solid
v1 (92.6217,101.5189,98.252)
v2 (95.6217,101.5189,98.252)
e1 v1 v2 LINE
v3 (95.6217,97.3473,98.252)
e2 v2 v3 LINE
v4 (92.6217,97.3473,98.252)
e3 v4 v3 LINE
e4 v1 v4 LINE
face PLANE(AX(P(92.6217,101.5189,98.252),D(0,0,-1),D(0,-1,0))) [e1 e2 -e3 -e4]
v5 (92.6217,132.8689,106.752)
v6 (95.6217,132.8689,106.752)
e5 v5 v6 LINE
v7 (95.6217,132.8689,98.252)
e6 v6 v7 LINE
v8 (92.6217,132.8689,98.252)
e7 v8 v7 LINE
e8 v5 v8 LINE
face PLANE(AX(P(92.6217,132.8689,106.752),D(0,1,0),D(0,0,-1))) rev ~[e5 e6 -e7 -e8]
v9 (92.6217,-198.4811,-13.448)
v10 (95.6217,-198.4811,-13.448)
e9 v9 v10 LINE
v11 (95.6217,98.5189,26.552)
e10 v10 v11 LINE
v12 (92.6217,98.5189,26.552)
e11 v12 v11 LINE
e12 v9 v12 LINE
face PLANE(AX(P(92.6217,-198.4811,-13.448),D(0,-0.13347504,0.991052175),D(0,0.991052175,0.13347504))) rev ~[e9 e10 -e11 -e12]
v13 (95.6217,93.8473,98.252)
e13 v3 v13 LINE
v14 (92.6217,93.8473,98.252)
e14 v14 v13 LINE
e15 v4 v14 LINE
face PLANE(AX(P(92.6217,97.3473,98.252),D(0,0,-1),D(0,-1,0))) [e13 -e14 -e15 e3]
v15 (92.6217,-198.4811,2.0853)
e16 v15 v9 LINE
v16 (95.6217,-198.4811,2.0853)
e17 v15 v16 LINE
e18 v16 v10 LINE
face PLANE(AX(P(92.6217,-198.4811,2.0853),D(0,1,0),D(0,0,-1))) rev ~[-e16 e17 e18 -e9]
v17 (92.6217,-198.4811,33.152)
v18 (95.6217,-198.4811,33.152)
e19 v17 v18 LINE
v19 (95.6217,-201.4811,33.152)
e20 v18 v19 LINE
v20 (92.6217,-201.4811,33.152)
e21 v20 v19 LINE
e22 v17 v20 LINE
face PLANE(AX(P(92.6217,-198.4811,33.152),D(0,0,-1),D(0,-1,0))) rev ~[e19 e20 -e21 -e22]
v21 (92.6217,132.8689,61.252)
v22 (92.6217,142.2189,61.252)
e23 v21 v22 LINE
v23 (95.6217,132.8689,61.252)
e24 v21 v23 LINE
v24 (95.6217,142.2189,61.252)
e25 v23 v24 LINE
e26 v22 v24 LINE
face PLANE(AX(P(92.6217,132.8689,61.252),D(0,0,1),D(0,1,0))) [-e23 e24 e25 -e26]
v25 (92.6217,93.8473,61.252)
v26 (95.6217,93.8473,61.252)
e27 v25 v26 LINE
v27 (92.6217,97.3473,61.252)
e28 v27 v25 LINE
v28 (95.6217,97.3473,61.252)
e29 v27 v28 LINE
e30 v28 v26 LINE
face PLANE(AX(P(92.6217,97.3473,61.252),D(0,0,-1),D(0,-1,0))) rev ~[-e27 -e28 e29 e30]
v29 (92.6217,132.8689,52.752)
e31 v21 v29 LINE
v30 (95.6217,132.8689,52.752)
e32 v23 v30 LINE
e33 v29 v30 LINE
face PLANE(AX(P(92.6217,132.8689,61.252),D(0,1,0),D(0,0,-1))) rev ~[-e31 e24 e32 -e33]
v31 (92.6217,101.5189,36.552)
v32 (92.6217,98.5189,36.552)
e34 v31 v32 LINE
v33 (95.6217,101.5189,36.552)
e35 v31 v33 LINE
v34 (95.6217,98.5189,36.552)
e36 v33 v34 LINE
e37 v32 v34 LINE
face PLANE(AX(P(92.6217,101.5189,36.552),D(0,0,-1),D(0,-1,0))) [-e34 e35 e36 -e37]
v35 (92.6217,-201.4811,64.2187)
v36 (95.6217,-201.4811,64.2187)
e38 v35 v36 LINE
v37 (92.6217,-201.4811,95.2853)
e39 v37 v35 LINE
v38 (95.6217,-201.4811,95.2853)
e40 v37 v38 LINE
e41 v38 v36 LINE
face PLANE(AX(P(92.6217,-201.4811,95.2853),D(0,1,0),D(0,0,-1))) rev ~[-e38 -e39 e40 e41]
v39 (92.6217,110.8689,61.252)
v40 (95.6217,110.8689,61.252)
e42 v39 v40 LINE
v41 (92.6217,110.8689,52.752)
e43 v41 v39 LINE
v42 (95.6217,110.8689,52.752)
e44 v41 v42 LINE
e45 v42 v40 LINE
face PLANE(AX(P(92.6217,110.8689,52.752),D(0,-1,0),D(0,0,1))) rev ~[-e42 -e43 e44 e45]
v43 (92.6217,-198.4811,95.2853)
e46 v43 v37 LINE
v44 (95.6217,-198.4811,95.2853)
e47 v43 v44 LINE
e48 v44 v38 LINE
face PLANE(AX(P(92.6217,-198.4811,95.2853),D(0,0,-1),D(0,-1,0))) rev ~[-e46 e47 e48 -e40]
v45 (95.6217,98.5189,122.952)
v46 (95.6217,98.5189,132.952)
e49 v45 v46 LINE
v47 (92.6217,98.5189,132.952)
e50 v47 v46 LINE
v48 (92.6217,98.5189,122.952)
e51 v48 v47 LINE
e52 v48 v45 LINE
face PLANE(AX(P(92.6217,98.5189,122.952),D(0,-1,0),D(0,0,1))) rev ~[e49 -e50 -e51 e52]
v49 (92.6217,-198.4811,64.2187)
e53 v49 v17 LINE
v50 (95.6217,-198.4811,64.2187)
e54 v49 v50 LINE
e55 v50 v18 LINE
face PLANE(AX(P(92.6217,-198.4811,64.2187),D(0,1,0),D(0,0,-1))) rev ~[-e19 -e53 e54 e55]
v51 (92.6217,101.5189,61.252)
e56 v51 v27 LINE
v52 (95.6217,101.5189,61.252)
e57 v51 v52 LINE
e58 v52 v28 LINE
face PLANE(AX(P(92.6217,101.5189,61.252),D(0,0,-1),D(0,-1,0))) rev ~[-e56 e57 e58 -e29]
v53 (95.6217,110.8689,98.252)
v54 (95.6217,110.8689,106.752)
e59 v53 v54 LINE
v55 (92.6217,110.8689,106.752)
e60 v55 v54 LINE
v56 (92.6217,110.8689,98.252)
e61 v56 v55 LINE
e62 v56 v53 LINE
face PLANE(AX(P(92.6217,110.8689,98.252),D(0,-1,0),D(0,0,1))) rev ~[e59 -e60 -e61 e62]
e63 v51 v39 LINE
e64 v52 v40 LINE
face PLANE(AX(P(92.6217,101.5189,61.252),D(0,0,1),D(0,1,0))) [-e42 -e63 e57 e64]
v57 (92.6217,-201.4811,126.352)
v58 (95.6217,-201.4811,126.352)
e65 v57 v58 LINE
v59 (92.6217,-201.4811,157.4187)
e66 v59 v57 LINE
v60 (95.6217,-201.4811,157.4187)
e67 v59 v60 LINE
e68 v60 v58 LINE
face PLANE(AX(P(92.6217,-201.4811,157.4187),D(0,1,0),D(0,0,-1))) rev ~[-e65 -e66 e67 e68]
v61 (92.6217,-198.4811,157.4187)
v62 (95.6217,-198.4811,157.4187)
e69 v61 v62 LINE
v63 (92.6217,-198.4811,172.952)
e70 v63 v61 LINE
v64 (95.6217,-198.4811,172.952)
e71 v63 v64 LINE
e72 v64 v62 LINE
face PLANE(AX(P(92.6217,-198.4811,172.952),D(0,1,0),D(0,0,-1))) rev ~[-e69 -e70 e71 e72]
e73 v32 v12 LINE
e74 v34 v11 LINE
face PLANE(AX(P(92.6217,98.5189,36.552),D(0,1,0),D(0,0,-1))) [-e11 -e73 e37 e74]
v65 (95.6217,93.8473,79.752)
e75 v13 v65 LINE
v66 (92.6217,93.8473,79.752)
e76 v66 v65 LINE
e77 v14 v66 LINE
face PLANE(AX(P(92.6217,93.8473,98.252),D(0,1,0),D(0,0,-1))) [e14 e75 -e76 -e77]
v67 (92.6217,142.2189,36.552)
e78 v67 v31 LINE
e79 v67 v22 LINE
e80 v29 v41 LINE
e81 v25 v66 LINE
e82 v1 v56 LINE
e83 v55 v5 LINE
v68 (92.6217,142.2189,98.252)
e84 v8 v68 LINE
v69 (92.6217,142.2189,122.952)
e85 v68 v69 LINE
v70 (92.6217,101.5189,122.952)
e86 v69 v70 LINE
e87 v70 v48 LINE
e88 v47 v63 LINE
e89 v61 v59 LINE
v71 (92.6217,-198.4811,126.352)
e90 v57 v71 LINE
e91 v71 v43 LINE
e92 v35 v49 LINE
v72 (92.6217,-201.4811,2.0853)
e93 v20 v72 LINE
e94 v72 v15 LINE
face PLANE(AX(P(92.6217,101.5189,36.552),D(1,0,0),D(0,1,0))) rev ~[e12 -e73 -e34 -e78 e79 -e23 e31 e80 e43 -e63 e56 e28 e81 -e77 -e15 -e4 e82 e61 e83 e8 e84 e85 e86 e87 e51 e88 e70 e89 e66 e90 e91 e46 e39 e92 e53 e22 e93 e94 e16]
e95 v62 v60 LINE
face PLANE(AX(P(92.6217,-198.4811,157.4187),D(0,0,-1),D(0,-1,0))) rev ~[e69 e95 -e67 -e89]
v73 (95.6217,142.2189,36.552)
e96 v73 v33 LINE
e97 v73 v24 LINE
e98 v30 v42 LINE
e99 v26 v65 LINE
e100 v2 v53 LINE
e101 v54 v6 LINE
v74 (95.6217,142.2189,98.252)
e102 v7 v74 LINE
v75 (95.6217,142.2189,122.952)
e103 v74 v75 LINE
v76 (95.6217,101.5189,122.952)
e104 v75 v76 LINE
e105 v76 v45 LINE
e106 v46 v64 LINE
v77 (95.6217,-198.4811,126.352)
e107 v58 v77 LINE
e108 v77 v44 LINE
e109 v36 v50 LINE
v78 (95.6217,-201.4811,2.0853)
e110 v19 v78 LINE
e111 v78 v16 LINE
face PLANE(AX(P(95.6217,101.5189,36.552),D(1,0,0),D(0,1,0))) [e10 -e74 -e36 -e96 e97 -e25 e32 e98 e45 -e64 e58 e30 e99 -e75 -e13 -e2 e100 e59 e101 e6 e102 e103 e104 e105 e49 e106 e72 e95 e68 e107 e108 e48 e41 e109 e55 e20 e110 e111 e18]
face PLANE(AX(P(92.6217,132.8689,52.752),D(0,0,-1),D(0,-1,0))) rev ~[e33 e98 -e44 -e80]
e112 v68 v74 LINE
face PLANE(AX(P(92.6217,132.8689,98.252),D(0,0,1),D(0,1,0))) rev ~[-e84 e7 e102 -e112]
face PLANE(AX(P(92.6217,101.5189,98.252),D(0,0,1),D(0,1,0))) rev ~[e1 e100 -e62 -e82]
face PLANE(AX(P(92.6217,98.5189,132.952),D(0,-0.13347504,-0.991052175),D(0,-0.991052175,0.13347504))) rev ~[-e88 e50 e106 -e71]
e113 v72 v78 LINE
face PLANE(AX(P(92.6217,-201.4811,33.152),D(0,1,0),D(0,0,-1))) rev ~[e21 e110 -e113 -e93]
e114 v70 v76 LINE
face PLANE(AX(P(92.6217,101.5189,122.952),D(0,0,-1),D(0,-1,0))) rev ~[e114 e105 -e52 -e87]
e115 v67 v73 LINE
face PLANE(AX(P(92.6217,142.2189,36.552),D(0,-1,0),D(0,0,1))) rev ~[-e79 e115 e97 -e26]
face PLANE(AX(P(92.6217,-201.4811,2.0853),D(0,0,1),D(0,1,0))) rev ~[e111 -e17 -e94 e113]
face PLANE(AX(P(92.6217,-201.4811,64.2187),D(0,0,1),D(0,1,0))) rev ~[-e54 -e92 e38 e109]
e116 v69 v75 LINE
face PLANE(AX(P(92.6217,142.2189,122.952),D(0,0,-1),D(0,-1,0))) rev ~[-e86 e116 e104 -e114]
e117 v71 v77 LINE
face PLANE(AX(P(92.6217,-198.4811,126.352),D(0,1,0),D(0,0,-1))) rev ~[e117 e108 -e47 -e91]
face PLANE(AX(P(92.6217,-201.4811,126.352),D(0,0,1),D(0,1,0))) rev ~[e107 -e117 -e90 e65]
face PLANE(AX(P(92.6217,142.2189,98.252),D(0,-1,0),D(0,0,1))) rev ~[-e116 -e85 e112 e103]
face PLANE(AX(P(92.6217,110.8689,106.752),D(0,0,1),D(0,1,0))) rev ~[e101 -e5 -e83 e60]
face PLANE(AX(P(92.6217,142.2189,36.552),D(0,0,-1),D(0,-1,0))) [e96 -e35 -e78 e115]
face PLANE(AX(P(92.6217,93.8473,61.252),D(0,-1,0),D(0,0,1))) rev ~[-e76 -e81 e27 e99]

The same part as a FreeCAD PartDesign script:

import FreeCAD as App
import Part
import Sketcher
from FreeCAD import Vector


def add_polygon(sketch, points):
    """Adds a closed chain of lines whose ends are joined by coincident constraints."""
    first, n = sketch.GeometryCount, len(points)
    for a, b in zip(points, points[1:] + points[:1]):
        sketch.addGeometry(Part.LineSegment(App.Vector(*a, 0), App.Vector(*b, 0)), False)
    for i in range(n):
        sketch.addConstraint(Sketcher.Constraint("Coincident", first + i, 2, first + (i + 1) % n, 1))

doc = App.newDocument("Part")
body = doc.addObject("PartDesign::Body", "Body")

# Sketch on YZ plane
sketch1 = body.newObject("Sketcher::SketchObject", "Sketch")
sketch1.AttachmentSupport = (doc.getObject("YZ_Plane"), [""])
sketch1.MapMode = "FlatFace"
sketch1.AttachmentOffset = App.Placement(Vector(0, 0, 92.6217), App.Rotation())
add_polygon(sketch1, [(142.2, 61.3), (132.9, 61.3), (132.9, 52.8), (110.9, 52.8), (110.9, 61.3), (93.8, 61.3), (93.8, 98.3), (110.9, 98.3), (110.9, 106.8), (132.9, 106.8), (132.9, 98.3), (142.2, 98.3), (142.2, 123), (98.5, 123), (98.5, 133), (-198.5, 173), (-198.5, 157.4), (-201.5, 157.4), (-201.5, 126.4), (-198.5, 126.4), (-198.5, 95.3), (-201.5, 95.3), (-201.5, 64.2), (-198.5, 64.2), (-198.5, 33.2), (-201.5, 33.2), (-201.5, 2.1), (-198.5, 2.1), (-198.5, -13.4), (98.5, 26.6), (98.5, 36.6), (142.2, 36.6)])  # lines 0-31
sketch1.addConstraint(Sketcher.Constraint("Horizontal", 0))
sketch1.addConstraint(Sketcher.Constraint("Vertical", 1))
sketch1.addConstraint(Sketcher.Constraint("Horizontal", 2))
sketch1.addConstraint(Sketcher.Constraint("Vertical", 3))
sketch1.addConstraint(Sketcher.Constraint("Horizontal", 4))
sketch1.addConstraint(Sketcher.Constraint("Vertical", 5))
sketch1.addConstraint(Sketcher.Constraint("Horizontal", 6))
sketch1.addConstraint(Sketcher.Constraint("Vertical", 7))
sketch1.addConstraint(Sketcher.Constraint("Horizontal", 8))
sketch1.addConstraint(Sketcher.Constraint("Vertical", 9))
sketch1.addConstraint(Sketcher.Constraint("Horizontal", 10))
sketch1.addConstraint(Sketcher.Constraint("Vertical", 11))
sketch1.addConstraint(Sketcher.Constraint("Horizontal", 12))
sketch1.addConstraint(Sketcher.Constraint("Vertical", 13))
sketch1.addConstraint(Sketcher.Constraint("Vertical", 15))
sketch1.addConstraint(Sketcher.Constraint("Horizontal", 16))
sketch1.addConstraint(Sketcher.Constraint("Vertical", 17))
sketch1.addConstraint(Sketcher.Constraint("Horizontal", 18))
sketch1.addConstraint(Sketcher.Constraint("Vertical", 19))
sketch1.addConstraint(Sketcher.Constraint("Horizontal", 20))
sketch1.addConstraint(Sketcher.Constraint("Vertical", 21))
sketch1.addConstraint(Sketcher.Constraint("Horizontal", 22))
sketch1.addConstraint(Sketcher.Constraint("Vertical", 23))
sketch1.addConstraint(Sketcher.Constraint("Horizontal", 24))
sketch1.addConstraint(Sketcher.Constraint("Vertical", 25))
sketch1.addConstraint(Sketcher.Constraint("Horizontal", 26))
sketch1.addConstraint(Sketcher.Constraint("Vertical", 27))
sketch1.addConstraint(Sketcher.Constraint("Vertical", 29))
sketch1.addConstraint(Sketcher.Constraint("Horizontal", 30))
sketch1.addConstraint(Sketcher.Constraint("Vertical", 31))
sketch1.addConstraint(Sketcher.Constraint("Horizontal", 0, 2, 3, 2))
sketch1.addConstraint(Sketcher.Constraint("Horizontal", 6, 2, 9, 2))
sketch1.addConstraint(Sketcher.Constraint("Vertical", 3, 2, 6, 2))
sketch1.addConstraint(Sketcher.Constraint("Vertical", 1, 2, 8, 2))
sketch1.addConstraint(Sketcher.Constraint("Vertical", 15, 2, 18, 2))
sketch1.addConstraint(Sketcher.Constraint("Vertical", 17, 2, 20, 2))
sketch1.addConstraint(Sketcher.Constraint("Vertical", 19, 2, 22, 2))
sketch1.addConstraint(Sketcher.Constraint("Vertical", 21, 2, 24, 2))
sketch1.addConstraint(Sketcher.Constraint("Vertical", 23, 2, 26, 2))
sketch1.addConstraint(Sketcher.Constraint("Vertical", 13, 2, 28, 2))
sketch1.addConstraint(Sketcher.Constraint("Vertical", 11, 2, 30, 2))
sketch1.addConstraint(Sketcher.Constraint("Equal", 3, 7))
sketch1.addConstraint(Sketcher.Constraint("Equal", 17, 19))
sketch1.addConstraint(Sketcher.Constraint("Equal", 19, 21))
sketch1.addConstraint(Sketcher.Constraint("Equal", 21, 23))
sketch1.addConstraint(Sketcher.Constraint("Equal", 23, 25))
sketch1.addConstraint(Sketcher.Constraint("Equal", 15, 27))
sketch1.addConstraint(Sketcher.Constraint("Equal", 13, 29))
sketch1.addConstraint(Sketcher.Constraint("Equal", 11, 31))
sketch1.addConstraint(Sketcher.Constraint("Equal", 14, 28))
sketch1.addConstraint(Sketcher.Constraint("DistanceX", 16, 2, 16, 1, 3.0))
sketch1.addConstraint(Sketcher.Constraint("DistanceY", 13, 1, 13, 2, 10.0))
sketch1.addConstraint(Sketcher.Constraint("DistanceX", 2, 2, 2, 1, 22.0))
sketch1.addConstraint(Sketcher.Constraint("DistanceY", 5, 1, 5, 2, 37.0))
sketch1.addConstraint(Sketcher.Constraint("DistanceX", 12, 2, 12, 1, 43.7))
sketch1.addConstraint(Sketcher.Constraint("DistanceY", 1, 2, 1, 1, 8.5))
sketch1.addConstraint(Sketcher.Constraint("DistanceY", 11, 1, 11, 2, 24.7))
sketch1.addConstraint(Sketcher.Constraint("DistanceX", 14, 2, 13, 2, 297.0))
sketch1.addConstraint(Sketcher.Constraint("DistanceY", 13, 2, 14, 2, 40.0))
sketch1.addConstraint(Sketcher.Constraint("DistanceX", 0, 2, 0, 1, 9.35))
sketch1.addConstraint(Sketcher.Constraint("DistanceY", 17, 2, 14, 2, 46.6))
sketch1.addConstraint(Sketcher.Constraint("DistanceX", 4, 2, 4, 1, 17.0216))
sketch1.addConstraint(Sketcher.Constraint("DistanceX", -1, 1, 0, 2, 132.869))
sketch1.addConstraint(Sketcher.Constraint("DistanceY", -1, 1, 0, 2, 61.252))
pad1 = body.newObject("PartDesign::Pad", "Pad")
pad1.Profile = sketch1
pad1.Length = 3

doc.recompute()
